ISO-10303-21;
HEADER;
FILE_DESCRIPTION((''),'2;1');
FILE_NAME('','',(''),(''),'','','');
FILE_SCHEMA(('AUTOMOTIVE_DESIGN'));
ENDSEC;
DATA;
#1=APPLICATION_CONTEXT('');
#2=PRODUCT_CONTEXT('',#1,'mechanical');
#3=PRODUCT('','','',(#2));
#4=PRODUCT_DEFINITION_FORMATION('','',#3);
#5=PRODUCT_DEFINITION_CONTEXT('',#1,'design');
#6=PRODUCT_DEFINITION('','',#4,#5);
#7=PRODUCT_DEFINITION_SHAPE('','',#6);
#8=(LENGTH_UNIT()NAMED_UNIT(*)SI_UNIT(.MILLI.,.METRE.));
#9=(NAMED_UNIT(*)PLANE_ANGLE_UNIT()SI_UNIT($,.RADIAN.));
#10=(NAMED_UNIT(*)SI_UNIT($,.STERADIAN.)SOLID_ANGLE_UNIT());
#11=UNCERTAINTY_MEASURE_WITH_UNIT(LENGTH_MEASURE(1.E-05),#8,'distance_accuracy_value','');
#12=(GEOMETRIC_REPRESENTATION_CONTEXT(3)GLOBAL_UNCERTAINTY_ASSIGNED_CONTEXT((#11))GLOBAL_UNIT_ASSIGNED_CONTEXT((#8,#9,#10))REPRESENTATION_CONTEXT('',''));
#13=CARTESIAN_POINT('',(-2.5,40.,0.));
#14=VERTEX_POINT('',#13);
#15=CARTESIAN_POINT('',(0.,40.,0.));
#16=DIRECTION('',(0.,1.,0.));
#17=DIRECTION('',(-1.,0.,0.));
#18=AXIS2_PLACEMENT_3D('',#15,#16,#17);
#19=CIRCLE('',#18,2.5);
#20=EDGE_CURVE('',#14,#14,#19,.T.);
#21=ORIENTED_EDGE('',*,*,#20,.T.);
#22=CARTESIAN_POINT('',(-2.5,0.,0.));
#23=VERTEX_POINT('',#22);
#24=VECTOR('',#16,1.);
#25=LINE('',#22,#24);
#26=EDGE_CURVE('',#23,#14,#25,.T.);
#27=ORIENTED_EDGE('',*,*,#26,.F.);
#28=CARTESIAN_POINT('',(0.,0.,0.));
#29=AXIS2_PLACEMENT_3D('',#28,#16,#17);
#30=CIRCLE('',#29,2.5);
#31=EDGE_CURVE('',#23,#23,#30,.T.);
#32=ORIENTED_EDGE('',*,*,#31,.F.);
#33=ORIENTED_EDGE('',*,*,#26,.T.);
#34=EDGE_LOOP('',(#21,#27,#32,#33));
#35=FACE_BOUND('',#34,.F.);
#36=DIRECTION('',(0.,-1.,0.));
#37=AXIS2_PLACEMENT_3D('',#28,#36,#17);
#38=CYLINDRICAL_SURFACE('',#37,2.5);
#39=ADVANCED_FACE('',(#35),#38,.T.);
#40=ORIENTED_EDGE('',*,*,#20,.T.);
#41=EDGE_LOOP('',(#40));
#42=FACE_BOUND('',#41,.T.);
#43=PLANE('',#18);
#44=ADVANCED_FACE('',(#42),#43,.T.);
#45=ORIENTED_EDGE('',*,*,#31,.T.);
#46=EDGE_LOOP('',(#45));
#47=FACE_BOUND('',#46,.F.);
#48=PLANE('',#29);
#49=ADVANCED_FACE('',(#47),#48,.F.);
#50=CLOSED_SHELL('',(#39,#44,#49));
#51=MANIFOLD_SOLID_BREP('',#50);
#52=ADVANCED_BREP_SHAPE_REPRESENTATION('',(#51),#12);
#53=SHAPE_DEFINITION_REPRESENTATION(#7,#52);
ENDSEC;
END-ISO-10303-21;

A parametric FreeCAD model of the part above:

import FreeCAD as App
import Part
import Sketcher

V = App.Vector
Q = App.Units.Quantity

doc = App.newDocument("Part")
body = doc.addObject("PartDesign::Body", "Body")

sketch1 = doc.addObject("Sketcher::SketchObject", "Sketch")
body.addObject(sketch1)
sketch1.AttachmentSupport = (doc.XZ_Plane, [""])
sketch1.MapMode = "FlatFace"
sketch1.addGeometry(Part.Circle(V(0, 0, 0), V(0, 0, 1), 2.5), False)
sketch1.addConstraint(Sketcher.Constraint("Coincident", 0, 3, -1, 1))
sketch1.addConstraint(Sketcher.Constraint("Diameter", 0, Q("5 mm")))
pad1 = doc.addObject("PartDesign::Pad", "Pad")
body.addObject(pad1)
pad1.Profile = sketch1
pad1.Length = 40
pad1.Reversed = True

doc.recompute()
